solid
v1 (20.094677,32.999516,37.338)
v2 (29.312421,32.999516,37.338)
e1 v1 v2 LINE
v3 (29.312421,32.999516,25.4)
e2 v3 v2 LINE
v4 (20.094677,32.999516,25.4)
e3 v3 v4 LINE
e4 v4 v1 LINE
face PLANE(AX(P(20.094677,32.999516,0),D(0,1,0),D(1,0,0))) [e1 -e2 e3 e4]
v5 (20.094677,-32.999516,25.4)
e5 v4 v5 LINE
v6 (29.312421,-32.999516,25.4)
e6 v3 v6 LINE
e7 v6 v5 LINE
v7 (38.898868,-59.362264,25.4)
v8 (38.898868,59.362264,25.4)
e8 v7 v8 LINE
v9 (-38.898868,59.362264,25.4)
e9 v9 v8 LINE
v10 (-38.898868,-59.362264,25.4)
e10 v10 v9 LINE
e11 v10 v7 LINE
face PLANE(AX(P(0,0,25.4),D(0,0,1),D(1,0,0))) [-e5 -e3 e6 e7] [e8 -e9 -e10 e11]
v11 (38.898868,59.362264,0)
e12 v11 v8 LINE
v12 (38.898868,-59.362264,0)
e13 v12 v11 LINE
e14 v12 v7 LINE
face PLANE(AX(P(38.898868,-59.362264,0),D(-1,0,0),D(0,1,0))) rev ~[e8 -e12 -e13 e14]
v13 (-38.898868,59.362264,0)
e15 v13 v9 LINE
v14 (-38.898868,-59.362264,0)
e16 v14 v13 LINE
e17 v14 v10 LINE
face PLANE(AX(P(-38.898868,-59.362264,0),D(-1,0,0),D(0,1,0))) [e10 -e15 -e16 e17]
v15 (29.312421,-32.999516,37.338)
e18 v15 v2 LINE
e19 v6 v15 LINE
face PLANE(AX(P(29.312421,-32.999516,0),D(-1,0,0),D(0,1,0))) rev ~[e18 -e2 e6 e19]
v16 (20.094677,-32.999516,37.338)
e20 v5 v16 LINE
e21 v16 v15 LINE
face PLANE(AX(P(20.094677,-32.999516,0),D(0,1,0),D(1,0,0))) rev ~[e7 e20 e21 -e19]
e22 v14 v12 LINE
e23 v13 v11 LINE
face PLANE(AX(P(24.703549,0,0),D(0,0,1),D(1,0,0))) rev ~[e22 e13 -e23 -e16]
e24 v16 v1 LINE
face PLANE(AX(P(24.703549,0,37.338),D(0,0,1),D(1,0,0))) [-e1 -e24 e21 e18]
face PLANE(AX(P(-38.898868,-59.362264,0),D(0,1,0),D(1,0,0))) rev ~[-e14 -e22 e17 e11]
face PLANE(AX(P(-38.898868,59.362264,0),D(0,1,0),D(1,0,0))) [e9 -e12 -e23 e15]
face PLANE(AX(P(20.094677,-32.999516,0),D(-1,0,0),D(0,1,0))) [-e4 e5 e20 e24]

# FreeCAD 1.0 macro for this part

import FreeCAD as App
import Part
import Sketcher

V = App.Vector
Q = App.Units.Quantity


def add_polygon(sketch, points):
    """Adds a closed chain of lines whose ends are joined by coincident constraints."""
    first, n = sketch.GeometryCount, len(points)
    for a, b in zip(points, points[1:] + points[:1]):
        sketch.addGeometry(Part.LineSegment(App.Vector(*a, 0), App.Vector(*b, 0)), False)
    for i in range(n):
        sketch.addConstraint(Sketcher.Constraint("Coincident", first + i, 2, first + (i + 1) % n, 1))

doc = App.newDocument("Part")
body = doc.addObject("PartDesign::Body", "Body")

# Sketch on XY plane
sketch1 = doc.addObject("Sketcher::SketchObject", "Sketch")
body.addObject(sketch1)
sketch1.AttachmentSupport = (doc.XY_Plane, [""])
sketch1.MapMode = "FlatFace"
add_polygon(sketch1, [(-38.898868, 59.362264), (-38.898868, -59.362264), (38.898868, -59.362264), (38.898868, 59.362264)])  # lines 0-3
sketch1.addConstraint([
    Sketcher.Constraint("Vertical", 0),
    Sketcher.Constraint("Horizontal", 1),
    Sketcher.Constraint("Vertical", 2),
    Sketcher.Constraint("Horizontal", 3),
    Sketcher.Constraint("Symmetric", 0, 2, 2, 2, -1, 1),
    Sketcher.Constraint("DistanceY", 0, 2, 0, 1, 118.724528),
    Sketcher.Constraint("DistanceX", 1, 1, 1, 2, 77.797736),
])
pad1 = doc.addObject("PartDesign::Pad", "Pad")
body.addObject(pad1)
pad1.Profile = sketch1
pad1.Length = Q("1 in")

# Sketch on XY plane
sketch2 = doc.addObject("Sketcher::SketchObject", "Sketch001")
body.addObject(sketch2)
sketch2.AttachmentSupport = (doc.XY_Plane, [""])
sketch2.MapMode = "FlatFace"
add_polygon(sketch2, [(20.094677, 32.999516), (20.094677, -32.999516), (29.312421, -32.999516), (29.312421, 32.999516)])  # lines 0-3
sketch2.addConstraint([
    Sketcher.Constraint("Vertical", 0),
    Sketcher.Constraint("Horizontal", 1),
    Sketcher.Constraint("Vertical", 2),
    Sketcher.Constraint("Horizontal", 3),
    Sketcher.Constraint("DistanceY", 0, 2, 0, 1, 65.999032),
    Sketcher.Constraint("DistanceX", 1, 1, 1, 2, 9.217743),
    Sketcher.Constraint("DistanceX", -1, 1, 1, 2, 29.312421),
    Sketcher.Constraint("DistanceY", 0, 2, -1, 1, 32.999516),
])
pad2 = doc.addObject("PartDesign::Pad", "Pad001")
body.addObject(pad2)
pad2.Profile = sketch2
pad2.Length = Q("1.47 in")

doc.recompute()
